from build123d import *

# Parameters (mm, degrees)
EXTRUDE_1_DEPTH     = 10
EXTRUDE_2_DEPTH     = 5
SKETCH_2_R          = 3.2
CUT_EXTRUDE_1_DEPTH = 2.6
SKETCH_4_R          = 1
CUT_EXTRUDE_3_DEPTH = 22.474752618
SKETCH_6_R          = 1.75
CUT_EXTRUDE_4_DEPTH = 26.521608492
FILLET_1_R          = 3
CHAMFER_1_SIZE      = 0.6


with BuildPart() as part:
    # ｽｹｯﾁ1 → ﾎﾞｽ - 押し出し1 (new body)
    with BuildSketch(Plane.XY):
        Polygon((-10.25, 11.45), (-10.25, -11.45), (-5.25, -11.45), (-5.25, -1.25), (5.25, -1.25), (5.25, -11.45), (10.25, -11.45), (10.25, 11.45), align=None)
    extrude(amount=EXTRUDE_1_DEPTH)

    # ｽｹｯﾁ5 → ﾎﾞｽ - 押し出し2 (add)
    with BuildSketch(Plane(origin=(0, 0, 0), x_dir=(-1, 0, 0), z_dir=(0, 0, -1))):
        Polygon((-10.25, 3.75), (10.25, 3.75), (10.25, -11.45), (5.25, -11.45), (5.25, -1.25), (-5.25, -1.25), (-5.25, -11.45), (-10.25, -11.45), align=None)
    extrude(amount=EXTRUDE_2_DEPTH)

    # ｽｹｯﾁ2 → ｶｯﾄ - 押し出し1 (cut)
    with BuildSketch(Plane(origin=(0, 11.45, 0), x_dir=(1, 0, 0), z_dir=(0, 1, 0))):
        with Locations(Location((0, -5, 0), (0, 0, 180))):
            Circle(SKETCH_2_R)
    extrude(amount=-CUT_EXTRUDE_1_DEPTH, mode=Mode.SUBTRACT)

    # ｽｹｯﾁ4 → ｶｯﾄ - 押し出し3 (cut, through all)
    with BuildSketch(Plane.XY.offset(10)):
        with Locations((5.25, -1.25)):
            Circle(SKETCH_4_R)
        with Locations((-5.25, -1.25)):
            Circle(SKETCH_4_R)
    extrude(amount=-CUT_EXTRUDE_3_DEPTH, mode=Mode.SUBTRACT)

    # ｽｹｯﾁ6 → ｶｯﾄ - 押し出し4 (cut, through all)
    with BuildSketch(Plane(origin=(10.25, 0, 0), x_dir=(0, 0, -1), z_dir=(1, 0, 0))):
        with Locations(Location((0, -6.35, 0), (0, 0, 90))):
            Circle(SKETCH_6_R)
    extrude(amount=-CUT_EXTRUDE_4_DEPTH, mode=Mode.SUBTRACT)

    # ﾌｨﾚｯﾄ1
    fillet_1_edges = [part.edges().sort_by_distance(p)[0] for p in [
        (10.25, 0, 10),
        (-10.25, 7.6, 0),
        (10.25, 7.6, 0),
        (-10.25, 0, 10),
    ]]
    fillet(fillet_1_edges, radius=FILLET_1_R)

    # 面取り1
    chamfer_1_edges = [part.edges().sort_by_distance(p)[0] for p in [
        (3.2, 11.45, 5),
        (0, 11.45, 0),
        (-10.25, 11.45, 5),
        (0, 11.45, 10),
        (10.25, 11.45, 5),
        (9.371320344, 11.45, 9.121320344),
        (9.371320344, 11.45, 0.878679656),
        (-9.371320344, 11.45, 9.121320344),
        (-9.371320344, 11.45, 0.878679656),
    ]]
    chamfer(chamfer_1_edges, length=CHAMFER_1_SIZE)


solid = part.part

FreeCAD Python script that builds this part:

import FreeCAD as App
import Part
import Sketcher
from FreeCAD import Vector
Q = App.Units.Quantity


def edges_at(feature, points):
    """Names of the edges that pass closest to the given points."""
    edges = feature.Shape.Edges
    near = lambda p: min(range(len(edges)), key=lambda i: edges[i].distToShape(Part.Vertex(*p))[0])
    return sorted({f"Edge{near(p) + 1}" for p in points})


def add_polygon(sketch, points):
    """Adds a closed chain of lines whose ends are joined by coincident constraints."""
    first, n = sketch.GeometryCount, len(points)
    for a, b in zip(points, points[1:] + points[:1]):
        sketch.addGeometry(Part.LineSegment(App.Vector(*a, 0), App.Vector(*b, 0)), False)
    for i in range(n):
        sketch.addConstraint(Sketcher.Constraint("Coincident", first + i, 2, first + (i + 1) % n, 1))

doc = App.newDocument("Part")
body = doc.addObject("PartDesign::Body", "Body")

# Sketch on XY plane
sketch1 = doc.addObject("Sketcher::SketchObject", "Sketch")
body.addObject(sketch1)
sketch1.AttachmentSupport = (doc.XY_Plane, [""])
sketch1.MapMode = "FlatFace"
add_polygon(sketch1, [(-10, 11), (-10, -11), (-5, -11), (-5, -1), (5, -1), (5, -11), (10, -11), (10, 11)])  # lines 0-7
sketch1.addConstraint([
    Sketcher.Constraint("Vertical", 0),
    Sketcher.Constraint("Horizontal", 1),
    Sketcher.Constraint("Vertical", 2),
    Sketcher.Constraint("Horizontal", 3),
    Sketcher.Constraint("Vertical", 4),
    Sketcher.Constraint("Horizontal", 5),
    Sketcher.Constraint("Vertical", 6),
    Sketcher.Constraint("Horizontal", 7),
    Sketcher.Constraint("Symmetric", 0, 2, 6, 2, -1, 1),
    Sketcher.Constraint("Symmetric", 1, 2, 4, 2, -2),
    Sketcher.Constraint("DistanceX", 1, 1, 1, 2, Q("5 mm")),
    Sketcher.Constraint("DistanceX", 3, 1, 3, 2, Q("10.5 mm")),
    Sketcher.Constraint("DistanceY", 0, 2, 0, 1, Q("22.9 mm")),
    Sketcher.Constraint("DistanceY", 2, 1, 2, 2, Q("10.2 mm")),
])
pad1 = doc.addObject("PartDesign::Pad", "Pad")
body.addObject(pad1)
pad1.Profile = sketch1
pad1.Length = 10

# Sketch on XY plane
sketch2 = doc.addObject("Sketcher::SketchObject", "Sketch001")
body.addObject(sketch2)
sketch2.AttachmentSupport = (doc.XY_Plane, [""])
sketch2.MapMode = "FlatFace"
add_polygon(sketch2, [(-10, 4), (10, 4), (10, -11), (5, -11), (5, -1), (-5, -1), (-5, -11), (-10, -11)])  # lines 0-7
sketch2.addConstraint([
    Sketcher.Constraint("Horizontal", 0),
    Sketcher.Constraint("Vertical", 1),
    Sketcher.Constraint("Horizontal", 2),
    Sketcher.Constraint("Vertical", 3),
    Sketcher.Constraint("Horizontal", 4),
    Sketcher.Constraint("Vertical", 5),
    Sketcher.Constraint("Horizontal", 6),
    Sketcher.Constraint("Vertical", 7),
    Sketcher.Constraint("Symmetric", 2, 2, 5, 2, -2),
    Sketcher.Constraint("Equal", 2, 6),
    Sketcher.Constraint("DistanceX", 2, 2, 2, 1, Q("5 mm")),
    Sketcher.Constraint("DistanceX", 0, 1, 0, 2, Q("20.5 mm")),
    Sketcher.Constraint("DistanceY", 1, 2, 1, 1, Q("15.2 mm")),
    Sketcher.Constraint("DistanceY", 3, 1, 3, 2, Q("10.2 mm")),
    Sketcher.Constraint("DistanceY", -1, 1, 0, 2, Q("3.75 mm")),
])
pad2 = doc.addObject("PartDesign::Pad", "Pad001")
body.addObject(pad2)
pad2.Profile = sketch2
pad2.Length = 5
pad2.Reversed = True

# Sketch on XZ plane
sketch3 = doc.addObject("Sketcher::SketchObject", "Sketch002")
body.addObject(sketch3)
sketch3.AttachmentSupport = (doc.XZ_Plane, [""])
sketch3.MapMode = "FlatFace"
sketch3.AttachmentOffset = App.Placement(Vector(0, 0, -11.45), App.Rotation())
sketch3.addGeometry(Part.Circle(Vector(0, 5, 0), Vector(0, 0, 1), 3.2), False)
sketch3.addConstraint([
    Sketcher.Constraint("PointOnObject", 0, 3, -2),
    Sketcher.Constraint("Diameter", 0, Q("6.4 mm")),
    Sketcher.Constraint("DistanceY", -1, 1, 0, 3, Q("5 mm")),
])
pocket1 = doc.addObject("PartDesign::Pocket", "Pocket")
body.addObject(pocket1)
pocket1.Profile = sketch3
pocket1.Length = 2.6
pocket1.Reversed = True

# Sketch on XY plane
sketch4 = doc.addObject("Sketcher::SketchObject", "Sketch003")
body.addObject(sketch4)
sketch4.AttachmentSupport = (doc.XY_Plane, [""])
sketch4.MapMode = "FlatFace"
sketch4.AttachmentOffset = App.Placement(Vector(0, 0, 10), App.Rotation())
sketch4.addGeometry([
    Part.Circle(Vector(5.2, -1.2, 0), Vector(0, 0, 1), 1),
    Part.Circle(Vector(-5.2, -1.2, 0), Vector(0, 0, 1), 1),
], False)
sketch4.addConstraint([
    Sketcher.Constraint("Equal", 0, 1),
    Sketcher.Constraint("Symmetric", 0, 3, 1, 3, -2),
    Sketcher.Constraint("Diameter", 0, Q("2 mm")),
    Sketcher.Constraint("DistanceX", 1, 3, 0, 3, Q("10.5 mm")),
    Sketcher.Constraint("DistanceY", 0, 3, -1, 1, Q("1.25 mm")),
])
pocket2 = doc.addObject("PartDesign::Pocket", "Pocket001")
body.addObject(pocket2)
pocket2.Profile = sketch4
pocket2.Type = "ThroughAll"

# Sketch on YZ plane
sketch5 = doc.addObject("Sketcher::SketchObject", "Sketch004")
body.addObject(sketch5)
sketch5.AttachmentSupport = (doc.YZ_Plane, [""])
sketch5.MapMode = "FlatFace"
sketch5.AttachmentOffset = App.Placement(Vector(0, 0, 10.25), App.Rotation())
sketch5.addGeometry(Part.Circle(Vector(-6.3, 0, 0), Vector(0, 0, 1), 1.8), False)
sketch5.addConstraint([
    Sketcher.Constraint("PointOnObject", 0, 3, -1),
    Sketcher.Constraint("Diameter", 0, Q("3.5 mm")),
    Sketcher.Constraint("DistanceX", 0, 3, -1, 1, Q("6.35 mm")),
])
pocket3 = doc.addObject("PartDesign::Pocket", "Pocket002")
body.addObject(pocket3)
pocket3.Profile = sketch5
pocket3.Type = "ThroughAll"
doc.recompute()

fillet = doc.addObject("PartDesign::Fillet", "Fillet")
body.addObject(fillet)
fillet.Base = (pocket3, edges_at(pocket3, [
    (10.25, 0, 10),
    (-10.25, 7.6, 0),
    (10.25, 7.6, 0),
    (-10.25, 0, 10),
]))
fillet.Radius = 3
doc.recompute()

chamfer = doc.addObject("PartDesign::Chamfer", "Chamfer")
body.addObject(chamfer)
chamfer.Base = (fillet, edges_at(fillet, [
    (3.2, 11.45, 5),
    (0, 11.45, 0),
    (-10.25, 11.45, 5),
    (0, 11.45, 10),
    (10.25, 11.45, 5),
    (9.371, 11.45, 9.121),
    (9.371, 11.45, 0.879),
    (-9.371, 11.45, 9.121),
    (-9.371, 11.45, 0.879),
]))
chamfer.Size = 0.6

doc.recompute()
